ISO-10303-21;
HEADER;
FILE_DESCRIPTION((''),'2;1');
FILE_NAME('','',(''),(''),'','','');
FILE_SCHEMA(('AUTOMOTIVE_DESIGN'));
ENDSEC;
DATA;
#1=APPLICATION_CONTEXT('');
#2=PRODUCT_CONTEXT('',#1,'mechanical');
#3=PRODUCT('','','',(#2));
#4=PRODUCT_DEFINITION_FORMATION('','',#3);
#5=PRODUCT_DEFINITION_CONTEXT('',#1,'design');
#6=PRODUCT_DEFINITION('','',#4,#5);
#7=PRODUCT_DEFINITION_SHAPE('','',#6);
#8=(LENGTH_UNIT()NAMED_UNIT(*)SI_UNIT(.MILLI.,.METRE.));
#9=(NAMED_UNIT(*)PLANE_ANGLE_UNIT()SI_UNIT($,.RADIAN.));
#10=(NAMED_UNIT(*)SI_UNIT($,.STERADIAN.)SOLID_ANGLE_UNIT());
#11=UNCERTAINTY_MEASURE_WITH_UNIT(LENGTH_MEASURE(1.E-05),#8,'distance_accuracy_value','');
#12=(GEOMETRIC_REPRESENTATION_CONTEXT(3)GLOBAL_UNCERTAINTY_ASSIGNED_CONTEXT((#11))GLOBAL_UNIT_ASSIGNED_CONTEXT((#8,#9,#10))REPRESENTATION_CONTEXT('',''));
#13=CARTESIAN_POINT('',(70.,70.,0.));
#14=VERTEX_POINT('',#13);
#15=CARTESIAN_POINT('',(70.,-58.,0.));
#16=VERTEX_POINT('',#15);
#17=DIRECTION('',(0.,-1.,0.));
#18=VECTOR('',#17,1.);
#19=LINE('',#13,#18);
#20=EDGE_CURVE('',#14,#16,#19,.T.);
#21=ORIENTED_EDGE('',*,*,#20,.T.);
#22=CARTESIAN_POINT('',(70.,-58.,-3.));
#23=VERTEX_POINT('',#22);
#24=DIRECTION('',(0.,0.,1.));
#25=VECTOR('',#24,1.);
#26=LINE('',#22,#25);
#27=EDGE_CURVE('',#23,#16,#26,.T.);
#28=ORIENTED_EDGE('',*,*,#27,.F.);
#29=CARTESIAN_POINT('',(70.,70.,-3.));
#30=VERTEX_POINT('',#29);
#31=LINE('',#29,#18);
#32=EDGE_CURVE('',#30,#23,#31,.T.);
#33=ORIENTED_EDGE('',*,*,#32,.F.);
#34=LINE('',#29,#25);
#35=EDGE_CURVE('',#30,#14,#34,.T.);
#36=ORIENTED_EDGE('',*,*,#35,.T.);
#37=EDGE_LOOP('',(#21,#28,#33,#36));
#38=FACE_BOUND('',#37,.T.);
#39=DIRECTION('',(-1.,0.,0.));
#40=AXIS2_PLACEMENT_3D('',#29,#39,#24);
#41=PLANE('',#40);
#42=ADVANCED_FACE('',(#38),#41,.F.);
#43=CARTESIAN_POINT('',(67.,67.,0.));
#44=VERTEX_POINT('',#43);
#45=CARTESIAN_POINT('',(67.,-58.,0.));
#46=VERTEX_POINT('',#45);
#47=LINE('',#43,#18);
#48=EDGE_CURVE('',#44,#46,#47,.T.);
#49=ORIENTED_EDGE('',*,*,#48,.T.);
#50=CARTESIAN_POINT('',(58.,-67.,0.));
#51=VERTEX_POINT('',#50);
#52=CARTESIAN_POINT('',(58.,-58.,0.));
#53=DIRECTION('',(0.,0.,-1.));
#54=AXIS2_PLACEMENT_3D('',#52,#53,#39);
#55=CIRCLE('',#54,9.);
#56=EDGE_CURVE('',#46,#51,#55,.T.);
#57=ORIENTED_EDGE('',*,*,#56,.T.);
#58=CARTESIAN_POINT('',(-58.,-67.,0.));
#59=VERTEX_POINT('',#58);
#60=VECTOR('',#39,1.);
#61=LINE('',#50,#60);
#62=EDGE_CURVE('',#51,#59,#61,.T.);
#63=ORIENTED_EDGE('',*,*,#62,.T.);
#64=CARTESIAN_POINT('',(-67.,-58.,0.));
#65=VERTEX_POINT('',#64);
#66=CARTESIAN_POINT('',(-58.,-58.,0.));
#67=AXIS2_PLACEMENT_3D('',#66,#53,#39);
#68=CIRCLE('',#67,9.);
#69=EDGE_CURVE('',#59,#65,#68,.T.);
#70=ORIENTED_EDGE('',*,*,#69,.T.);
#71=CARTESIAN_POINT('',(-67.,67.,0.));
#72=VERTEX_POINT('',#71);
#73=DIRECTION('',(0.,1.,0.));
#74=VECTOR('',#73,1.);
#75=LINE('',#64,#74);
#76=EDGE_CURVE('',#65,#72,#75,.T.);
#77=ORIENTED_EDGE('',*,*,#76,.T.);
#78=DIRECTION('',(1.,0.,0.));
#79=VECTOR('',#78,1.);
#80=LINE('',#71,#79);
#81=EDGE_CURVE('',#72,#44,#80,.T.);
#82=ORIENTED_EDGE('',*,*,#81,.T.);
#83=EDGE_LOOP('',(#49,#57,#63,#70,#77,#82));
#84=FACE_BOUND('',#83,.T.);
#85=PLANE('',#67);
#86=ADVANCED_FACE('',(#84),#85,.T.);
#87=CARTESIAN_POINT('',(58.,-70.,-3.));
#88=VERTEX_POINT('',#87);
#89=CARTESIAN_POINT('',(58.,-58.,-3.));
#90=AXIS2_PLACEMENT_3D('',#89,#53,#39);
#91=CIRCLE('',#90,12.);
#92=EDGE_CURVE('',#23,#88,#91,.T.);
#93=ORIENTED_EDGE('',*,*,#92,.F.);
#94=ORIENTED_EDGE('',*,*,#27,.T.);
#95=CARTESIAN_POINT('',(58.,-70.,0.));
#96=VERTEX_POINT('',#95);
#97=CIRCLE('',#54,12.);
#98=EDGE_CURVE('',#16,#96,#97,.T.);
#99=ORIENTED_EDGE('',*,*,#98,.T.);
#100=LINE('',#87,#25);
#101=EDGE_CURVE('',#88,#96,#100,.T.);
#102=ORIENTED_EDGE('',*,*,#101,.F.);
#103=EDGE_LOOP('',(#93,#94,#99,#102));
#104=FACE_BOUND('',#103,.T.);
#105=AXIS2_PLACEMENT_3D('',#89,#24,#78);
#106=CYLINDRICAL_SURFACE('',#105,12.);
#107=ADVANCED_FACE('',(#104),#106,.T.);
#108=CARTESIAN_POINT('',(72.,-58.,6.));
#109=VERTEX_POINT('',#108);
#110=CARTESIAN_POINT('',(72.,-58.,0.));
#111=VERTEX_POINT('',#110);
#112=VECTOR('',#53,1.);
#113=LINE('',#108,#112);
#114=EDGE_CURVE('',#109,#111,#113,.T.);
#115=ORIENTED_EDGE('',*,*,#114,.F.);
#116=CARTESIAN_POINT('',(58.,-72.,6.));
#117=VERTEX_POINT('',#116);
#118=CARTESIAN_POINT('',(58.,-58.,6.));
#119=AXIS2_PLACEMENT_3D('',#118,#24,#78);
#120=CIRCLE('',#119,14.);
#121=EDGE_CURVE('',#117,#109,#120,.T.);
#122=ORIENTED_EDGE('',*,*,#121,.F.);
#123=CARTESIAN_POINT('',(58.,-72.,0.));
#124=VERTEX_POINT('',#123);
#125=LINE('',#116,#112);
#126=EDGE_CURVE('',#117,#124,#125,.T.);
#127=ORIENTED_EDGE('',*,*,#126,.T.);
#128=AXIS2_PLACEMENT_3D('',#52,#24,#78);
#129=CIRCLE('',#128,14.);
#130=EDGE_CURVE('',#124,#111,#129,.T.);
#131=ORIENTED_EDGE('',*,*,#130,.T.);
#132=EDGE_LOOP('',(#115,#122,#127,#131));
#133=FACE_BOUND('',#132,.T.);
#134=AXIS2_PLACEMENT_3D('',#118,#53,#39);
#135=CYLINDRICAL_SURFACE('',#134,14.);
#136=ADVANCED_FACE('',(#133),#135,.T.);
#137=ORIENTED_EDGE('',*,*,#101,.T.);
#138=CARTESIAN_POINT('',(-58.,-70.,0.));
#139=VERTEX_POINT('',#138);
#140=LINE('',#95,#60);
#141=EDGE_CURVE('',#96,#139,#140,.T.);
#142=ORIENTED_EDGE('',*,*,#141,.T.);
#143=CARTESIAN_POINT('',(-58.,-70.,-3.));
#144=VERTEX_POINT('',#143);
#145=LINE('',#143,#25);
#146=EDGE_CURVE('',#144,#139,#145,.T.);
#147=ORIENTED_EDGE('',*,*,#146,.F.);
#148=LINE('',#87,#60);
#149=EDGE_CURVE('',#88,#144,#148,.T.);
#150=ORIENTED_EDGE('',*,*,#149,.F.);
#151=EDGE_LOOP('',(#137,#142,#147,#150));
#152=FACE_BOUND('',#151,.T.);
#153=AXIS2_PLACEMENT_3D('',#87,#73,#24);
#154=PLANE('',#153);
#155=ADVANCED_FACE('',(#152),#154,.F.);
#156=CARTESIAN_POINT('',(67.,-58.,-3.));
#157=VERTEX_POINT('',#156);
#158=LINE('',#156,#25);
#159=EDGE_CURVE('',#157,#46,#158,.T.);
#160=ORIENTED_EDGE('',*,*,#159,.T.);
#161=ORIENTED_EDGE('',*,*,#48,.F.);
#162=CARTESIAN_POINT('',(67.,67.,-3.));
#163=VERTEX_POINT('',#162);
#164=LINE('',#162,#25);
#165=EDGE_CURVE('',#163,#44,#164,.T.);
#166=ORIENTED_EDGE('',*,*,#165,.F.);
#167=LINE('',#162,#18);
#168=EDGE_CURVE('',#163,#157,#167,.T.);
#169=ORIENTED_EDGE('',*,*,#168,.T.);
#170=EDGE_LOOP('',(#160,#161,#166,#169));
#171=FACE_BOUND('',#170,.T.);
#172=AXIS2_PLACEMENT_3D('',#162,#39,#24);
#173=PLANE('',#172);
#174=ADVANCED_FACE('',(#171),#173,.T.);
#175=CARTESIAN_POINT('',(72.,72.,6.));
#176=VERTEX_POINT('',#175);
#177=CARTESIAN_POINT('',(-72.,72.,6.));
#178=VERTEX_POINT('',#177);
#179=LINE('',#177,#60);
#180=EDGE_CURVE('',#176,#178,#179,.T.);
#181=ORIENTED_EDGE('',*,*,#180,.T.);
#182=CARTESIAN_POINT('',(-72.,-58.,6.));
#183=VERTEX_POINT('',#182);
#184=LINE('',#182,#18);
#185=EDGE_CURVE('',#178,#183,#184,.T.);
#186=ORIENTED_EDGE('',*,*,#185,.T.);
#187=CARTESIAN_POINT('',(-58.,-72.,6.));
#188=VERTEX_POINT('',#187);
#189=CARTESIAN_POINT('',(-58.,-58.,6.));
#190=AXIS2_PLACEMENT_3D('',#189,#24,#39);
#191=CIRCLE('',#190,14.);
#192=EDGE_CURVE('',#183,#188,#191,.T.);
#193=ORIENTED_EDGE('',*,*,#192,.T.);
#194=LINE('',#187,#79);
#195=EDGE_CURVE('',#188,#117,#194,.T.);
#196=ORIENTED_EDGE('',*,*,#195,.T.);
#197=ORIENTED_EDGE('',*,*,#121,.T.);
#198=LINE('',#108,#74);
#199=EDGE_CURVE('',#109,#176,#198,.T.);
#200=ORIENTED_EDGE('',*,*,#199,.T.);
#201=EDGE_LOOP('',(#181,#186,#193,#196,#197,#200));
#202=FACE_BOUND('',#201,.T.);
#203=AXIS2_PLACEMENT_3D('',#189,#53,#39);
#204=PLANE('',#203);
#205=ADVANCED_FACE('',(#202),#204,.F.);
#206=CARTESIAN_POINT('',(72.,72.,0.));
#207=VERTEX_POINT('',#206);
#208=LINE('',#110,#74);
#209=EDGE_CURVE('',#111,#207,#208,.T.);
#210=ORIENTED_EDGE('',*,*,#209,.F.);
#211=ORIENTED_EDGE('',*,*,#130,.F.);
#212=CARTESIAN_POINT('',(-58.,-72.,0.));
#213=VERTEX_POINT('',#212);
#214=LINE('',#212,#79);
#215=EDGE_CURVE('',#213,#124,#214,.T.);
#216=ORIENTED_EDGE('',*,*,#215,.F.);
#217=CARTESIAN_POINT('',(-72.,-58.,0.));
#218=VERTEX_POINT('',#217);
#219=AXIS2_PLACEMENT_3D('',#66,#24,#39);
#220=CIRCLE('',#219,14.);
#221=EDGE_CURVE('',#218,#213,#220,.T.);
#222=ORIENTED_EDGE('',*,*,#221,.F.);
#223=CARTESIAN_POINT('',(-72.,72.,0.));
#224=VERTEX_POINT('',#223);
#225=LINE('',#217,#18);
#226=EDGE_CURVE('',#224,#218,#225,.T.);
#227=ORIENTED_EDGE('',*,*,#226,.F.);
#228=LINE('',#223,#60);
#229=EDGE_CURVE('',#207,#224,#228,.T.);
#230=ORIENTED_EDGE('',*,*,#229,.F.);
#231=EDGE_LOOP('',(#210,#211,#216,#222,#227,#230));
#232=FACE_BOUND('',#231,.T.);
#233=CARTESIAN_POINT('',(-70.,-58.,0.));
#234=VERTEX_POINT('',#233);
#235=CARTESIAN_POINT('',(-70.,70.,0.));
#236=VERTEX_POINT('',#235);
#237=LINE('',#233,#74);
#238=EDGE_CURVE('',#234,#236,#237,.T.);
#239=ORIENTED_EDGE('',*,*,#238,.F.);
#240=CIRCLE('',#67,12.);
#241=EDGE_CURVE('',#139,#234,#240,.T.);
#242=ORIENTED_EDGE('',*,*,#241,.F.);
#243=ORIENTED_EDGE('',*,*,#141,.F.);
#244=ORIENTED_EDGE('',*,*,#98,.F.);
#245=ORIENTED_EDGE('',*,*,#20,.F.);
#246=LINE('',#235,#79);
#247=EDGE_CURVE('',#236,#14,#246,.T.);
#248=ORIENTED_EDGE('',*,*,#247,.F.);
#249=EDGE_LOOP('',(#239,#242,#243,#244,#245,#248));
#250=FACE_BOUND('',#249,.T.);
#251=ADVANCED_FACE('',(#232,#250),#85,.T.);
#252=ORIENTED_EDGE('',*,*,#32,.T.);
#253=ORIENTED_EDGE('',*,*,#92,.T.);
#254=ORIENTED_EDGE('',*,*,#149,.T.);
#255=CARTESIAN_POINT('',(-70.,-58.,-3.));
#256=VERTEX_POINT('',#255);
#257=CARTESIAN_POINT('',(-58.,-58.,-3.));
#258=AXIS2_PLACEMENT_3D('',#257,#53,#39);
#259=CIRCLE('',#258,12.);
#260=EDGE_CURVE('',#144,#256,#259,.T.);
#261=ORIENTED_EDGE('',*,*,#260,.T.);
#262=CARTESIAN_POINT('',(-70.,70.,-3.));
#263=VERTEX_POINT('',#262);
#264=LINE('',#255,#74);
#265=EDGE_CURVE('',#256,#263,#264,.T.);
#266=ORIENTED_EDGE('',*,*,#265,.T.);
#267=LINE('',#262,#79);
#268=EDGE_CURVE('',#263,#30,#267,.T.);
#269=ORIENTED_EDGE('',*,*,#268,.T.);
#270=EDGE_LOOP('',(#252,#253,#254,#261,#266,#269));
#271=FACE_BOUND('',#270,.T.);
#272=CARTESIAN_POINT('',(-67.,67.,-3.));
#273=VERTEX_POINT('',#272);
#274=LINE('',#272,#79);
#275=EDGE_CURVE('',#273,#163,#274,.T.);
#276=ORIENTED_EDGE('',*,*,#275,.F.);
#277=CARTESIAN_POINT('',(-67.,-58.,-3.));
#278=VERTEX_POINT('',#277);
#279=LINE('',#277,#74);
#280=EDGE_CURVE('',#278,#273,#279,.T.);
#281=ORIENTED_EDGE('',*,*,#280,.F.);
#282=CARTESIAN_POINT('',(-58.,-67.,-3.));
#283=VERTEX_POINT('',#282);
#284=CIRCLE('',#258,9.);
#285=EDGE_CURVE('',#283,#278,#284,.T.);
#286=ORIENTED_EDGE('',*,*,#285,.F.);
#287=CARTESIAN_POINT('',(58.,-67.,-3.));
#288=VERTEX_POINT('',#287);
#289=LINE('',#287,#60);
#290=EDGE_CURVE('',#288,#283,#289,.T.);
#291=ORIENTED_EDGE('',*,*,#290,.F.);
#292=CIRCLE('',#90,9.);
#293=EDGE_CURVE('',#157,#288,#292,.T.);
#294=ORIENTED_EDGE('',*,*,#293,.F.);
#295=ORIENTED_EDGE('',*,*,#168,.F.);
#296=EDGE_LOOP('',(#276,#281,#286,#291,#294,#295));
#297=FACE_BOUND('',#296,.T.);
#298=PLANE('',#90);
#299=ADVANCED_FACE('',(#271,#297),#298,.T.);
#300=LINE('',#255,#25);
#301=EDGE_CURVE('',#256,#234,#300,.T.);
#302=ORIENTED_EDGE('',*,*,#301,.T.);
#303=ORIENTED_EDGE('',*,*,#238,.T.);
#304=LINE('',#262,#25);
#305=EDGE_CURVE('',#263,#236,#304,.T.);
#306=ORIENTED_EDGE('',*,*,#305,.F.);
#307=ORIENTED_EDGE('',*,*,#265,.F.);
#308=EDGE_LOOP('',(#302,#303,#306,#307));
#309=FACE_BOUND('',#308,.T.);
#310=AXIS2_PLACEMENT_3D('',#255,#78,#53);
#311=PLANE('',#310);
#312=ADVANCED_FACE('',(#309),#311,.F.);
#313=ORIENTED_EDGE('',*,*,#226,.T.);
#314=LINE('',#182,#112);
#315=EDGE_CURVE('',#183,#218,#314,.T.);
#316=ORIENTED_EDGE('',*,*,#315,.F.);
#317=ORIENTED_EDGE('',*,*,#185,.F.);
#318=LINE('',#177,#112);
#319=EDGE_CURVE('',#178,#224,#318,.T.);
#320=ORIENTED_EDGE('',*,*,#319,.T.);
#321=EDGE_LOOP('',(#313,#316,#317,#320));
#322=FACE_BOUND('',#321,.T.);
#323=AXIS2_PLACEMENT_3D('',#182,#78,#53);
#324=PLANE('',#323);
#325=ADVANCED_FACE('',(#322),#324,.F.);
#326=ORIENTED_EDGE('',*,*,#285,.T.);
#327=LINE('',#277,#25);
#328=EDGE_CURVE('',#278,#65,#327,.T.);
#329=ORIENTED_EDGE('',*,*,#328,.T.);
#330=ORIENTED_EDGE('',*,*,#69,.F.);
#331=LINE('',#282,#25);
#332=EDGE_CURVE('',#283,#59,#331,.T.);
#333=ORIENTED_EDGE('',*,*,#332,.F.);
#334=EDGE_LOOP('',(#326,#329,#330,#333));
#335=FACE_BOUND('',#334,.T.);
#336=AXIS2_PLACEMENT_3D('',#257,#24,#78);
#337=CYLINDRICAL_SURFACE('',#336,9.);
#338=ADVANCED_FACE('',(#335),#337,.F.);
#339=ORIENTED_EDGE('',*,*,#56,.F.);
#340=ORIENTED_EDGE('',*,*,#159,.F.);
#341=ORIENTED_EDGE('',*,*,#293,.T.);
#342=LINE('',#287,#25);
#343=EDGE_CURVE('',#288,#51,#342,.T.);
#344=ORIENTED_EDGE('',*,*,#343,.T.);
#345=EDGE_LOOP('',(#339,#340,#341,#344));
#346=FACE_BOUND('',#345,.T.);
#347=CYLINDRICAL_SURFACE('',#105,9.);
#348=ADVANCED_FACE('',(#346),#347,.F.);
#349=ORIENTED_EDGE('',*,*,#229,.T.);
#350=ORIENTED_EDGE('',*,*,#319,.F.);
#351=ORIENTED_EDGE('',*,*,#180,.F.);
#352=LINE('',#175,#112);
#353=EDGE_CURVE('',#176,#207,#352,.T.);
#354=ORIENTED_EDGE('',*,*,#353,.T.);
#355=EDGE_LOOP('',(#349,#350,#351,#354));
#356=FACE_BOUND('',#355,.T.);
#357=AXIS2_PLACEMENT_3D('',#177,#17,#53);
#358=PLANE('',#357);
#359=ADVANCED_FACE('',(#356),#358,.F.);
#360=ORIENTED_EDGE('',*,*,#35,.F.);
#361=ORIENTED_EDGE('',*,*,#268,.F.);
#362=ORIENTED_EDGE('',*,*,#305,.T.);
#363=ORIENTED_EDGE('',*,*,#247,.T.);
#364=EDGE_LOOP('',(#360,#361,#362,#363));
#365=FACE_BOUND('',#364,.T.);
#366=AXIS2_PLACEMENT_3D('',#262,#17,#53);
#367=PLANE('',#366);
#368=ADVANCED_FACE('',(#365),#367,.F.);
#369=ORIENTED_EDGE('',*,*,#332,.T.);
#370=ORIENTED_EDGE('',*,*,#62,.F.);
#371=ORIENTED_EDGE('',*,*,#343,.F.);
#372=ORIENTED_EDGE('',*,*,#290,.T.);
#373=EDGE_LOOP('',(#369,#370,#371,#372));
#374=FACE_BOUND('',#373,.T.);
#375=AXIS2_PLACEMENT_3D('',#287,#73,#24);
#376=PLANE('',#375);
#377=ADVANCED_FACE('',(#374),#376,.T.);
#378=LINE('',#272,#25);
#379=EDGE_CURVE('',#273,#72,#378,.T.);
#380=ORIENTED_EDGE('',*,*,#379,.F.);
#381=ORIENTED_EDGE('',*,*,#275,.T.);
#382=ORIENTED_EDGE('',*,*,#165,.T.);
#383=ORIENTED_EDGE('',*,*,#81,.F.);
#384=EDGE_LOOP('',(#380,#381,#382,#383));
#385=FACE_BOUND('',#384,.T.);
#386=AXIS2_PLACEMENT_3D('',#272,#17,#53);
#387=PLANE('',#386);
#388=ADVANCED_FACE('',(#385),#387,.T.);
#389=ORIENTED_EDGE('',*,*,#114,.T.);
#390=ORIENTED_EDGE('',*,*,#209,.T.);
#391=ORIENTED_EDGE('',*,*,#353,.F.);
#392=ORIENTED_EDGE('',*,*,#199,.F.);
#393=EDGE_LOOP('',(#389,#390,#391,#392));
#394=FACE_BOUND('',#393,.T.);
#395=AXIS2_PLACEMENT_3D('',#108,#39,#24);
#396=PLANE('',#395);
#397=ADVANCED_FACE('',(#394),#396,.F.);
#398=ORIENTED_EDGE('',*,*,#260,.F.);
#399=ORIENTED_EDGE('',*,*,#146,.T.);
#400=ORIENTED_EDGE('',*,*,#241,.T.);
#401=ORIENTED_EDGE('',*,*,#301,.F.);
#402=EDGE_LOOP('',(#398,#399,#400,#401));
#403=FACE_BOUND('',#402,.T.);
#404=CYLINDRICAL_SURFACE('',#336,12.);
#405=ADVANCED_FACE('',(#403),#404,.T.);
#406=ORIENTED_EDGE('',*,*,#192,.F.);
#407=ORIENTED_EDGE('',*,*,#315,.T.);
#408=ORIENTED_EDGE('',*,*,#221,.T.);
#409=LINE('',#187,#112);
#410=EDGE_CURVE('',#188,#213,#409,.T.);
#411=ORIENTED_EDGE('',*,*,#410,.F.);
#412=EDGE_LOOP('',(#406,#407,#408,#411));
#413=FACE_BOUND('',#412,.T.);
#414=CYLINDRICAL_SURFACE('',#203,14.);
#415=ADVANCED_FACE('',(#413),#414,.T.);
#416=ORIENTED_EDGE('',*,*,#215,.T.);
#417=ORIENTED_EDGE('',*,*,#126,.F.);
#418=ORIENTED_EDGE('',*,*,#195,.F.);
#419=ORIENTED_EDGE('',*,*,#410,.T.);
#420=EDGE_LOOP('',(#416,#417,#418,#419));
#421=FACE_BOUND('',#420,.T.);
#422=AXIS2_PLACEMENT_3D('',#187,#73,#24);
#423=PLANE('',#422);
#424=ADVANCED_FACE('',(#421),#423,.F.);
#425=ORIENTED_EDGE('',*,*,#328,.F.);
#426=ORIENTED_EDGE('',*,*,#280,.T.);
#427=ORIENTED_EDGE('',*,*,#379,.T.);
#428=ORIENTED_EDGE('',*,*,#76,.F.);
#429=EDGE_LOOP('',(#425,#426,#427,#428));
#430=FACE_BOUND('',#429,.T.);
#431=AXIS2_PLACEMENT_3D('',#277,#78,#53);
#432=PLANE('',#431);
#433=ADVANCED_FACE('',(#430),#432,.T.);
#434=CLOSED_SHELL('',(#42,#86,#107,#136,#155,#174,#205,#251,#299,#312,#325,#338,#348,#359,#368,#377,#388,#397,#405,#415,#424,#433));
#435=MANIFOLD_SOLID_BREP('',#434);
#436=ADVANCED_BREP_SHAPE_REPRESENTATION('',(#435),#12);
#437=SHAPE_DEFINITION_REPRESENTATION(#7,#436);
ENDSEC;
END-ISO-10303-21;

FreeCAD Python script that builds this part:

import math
import FreeCAD as App
import Part
import Sketcher
Q = App.Units.Quantity

doc = App.newDocument("Part")
params = doc.addObject("Spreadsheet::Sheet", "Params")
for row, (alias, value) in enumerate([
    ("sketch1_radius", "14 mm"),
    ("sketch1_width", "116 mm"),
    ("sketch1_height", "130 mm"),
    ("pad1_length", "6 mm"),
    ("sketch2_radius", "12 mm"),
    ("sketch2_radius2", "9 mm"),
    ("sketch2_width", "116 mm"),
    ("sketch2_height", "128 mm"),
    ("sketch2_height2", "125 mm"),
    ("pad2_length", "3 mm"),
], start=1):
    params.set(f"A{row}", alias)
    params.set(f"B{row}", "=" + value)
    params.setAlias(f"B{row}", alias)

body = doc.addObject("PartDesign::Body", "Body")

# Sketch on XY plane
sketch1 = doc.addObject("Sketcher::SketchObject", "Sketch")
body.addObject(sketch1)
sketch1.AttachmentSupport = (doc.XY_Plane, [""])
sketch1.MapMode = "FlatFace"
sketch1.addGeometry([
    Part.LineSegment(App.Vector(-58, -72, 0), App.Vector(58, -72, 0)),  # 0
    Part.ArcOfCircle(Part.Circle(App.Vector(58, -58, 0), App.Vector(0, 0, 1), 14), math.radians(-90), math.radians(0)),  # 1
    Part.LineSegment(App.Vector(72, -58, 0), App.Vector(72, 72, 0)),  # 2
    Part.LineSegment(App.Vector(72, 72, 0), App.Vector(-72, 72, 0)),  # 3
    Part.LineSegment(App.Vector(-72, 72, 0), App.Vector(-72, -58, 0)),  # 4
    Part.ArcOfCircle(Part.Circle(App.Vector(-58, -58, 0), App.Vector(0, 0, 1), 14), math.radians(180), math.radians(270)),  # 5
], False)
sketch1.addConstraint([
    Sketcher.Constraint("Tangent", 0, 2, 1, 1),
    Sketcher.Constraint("Tangent", 1, 2, 2, 1),
    Sketcher.Constraint("Coincident", 2, 2, 3, 1),
    Sketcher.Constraint("Coincident", 3, 2, 4, 1),
    Sketcher.Constraint("Tangent", 4, 2, 5, 1),
    Sketcher.Constraint("Tangent", 5, 2, 0, 1),
    Sketcher.Constraint("Horizontal", 0),
    Sketcher.Constraint("Vertical", 2),
    Sketcher.Constraint("Horizontal", 3),
    Sketcher.Constraint("Vertical", 4),
    Sketcher.Constraint("Equal", 1, 5),
    Sketcher.Constraint("Radius", 1, Q("14 mm")),
    Sketcher.Constraint("DistanceX", 0, 1, 0, 2, Q("116 mm")),
    Sketcher.Constraint("DistanceY", 2, 1, 2, 2, Q("130 mm")),
    Sketcher.Constraint("DistanceX", -1, 1, 1, 3, Q("58 mm")),
    Sketcher.Constraint("DistanceY", 1, 3, -1, 1, Q("58 mm")),
])
sketch1.setExpression("Constraints[11]", "Params.sketch1_radius")
sketch1.setExpression("Constraints[12]", "Params.sketch1_width")
sketch1.setExpression("Constraints[13]", "Params.sketch1_height")
pad1 = doc.addObject("PartDesign::Pad", "Pad")
body.addObject(pad1)
pad1.Profile = sketch1
pad1.setExpression("Length", "Params.pad1_length")

# Sketch on XY plane
sketch2 = doc.addObject("Sketcher::SketchObject", "Sketch001")
body.addObject(sketch2)
sketch2.AttachmentSupport = (doc.XY_Plane, [""])
sketch2.MapMode = "FlatFace"
sketch2.addGeometry([
    Part.LineSegment(App.Vector(70, 70, 0), App.Vector(70, -58, 0)),  # 0
    Part.ArcOfCircle(Part.Circle(App.Vector(58, -58, 0), App.Vector(0, 0, 1), 12), math.radians(-90), math.radians(0)),  # 1
    Part.LineSegment(App.Vector(58, -70, 0), App.Vector(-58, -70, 0)),  # 2
    Part.ArcOfCircle(Part.Circle(App.Vector(-58, -58, 0), App.Vector(0, 0, 1), 12), math.radians(-180), math.radians(-90)),  # 3
    Part.LineSegment(App.Vector(-70, -58, 0), App.Vector(-70, 70, 0)),  # 4
    Part.LineSegment(App.Vector(-70, 70, 0), App.Vector(70, 70, 0)),  # 5
    Part.LineSegment(App.Vector(67, -58, 0), App.Vector(67, 67, 0)),  # 6
    Part.LineSegment(App.Vector(67, 67, 0), App.Vector(-67, 67, 0)),  # 7
    Part.LineSegment(App.Vector(-67, 67, 0), App.Vector(-67, -58, 0)),  # 8
    Part.ArcOfCircle(Part.Circle(App.Vector(-58, -58, 0), App.Vector(0, 0, 1), 9), math.radians(180), math.radians(270)),  # 9
    Part.LineSegment(App.Vector(-58, -67, 0), App.Vector(58, -67, 0)),  # 10
    Part.ArcOfCircle(Part.Circle(App.Vector(58, -58, 0), App.Vector(0, 0, 1), 9), math.radians(-90), math.radians(0)),  # 11
], False)
sketch2.addConstraint([
    Sketcher.Constraint("Tangent", 0, 2, 1, 2),
    Sketcher.Constraint("Tangent", 1, 1, 2, 1),
    Sketcher.Constraint("Tangent", 2, 2, 3, 2),
    Sketcher.Constraint("Tangent", 3, 1, 4, 1),
    Sketcher.Constraint("Coincident", 4, 2, 5, 1),
    Sketcher.Constraint("Coincident", 5, 2, 0, 1),
    Sketcher.Constraint("Coincident", 6, 2, 7, 1),
    Sketcher.Constraint("Coincident", 7, 2, 8, 1),
    Sketcher.Constraint("Tangent", 8, 2, 9, 1),
    Sketcher.Constraint("Tangent", 9, 2, 10, 1),
    Sketcher.Constraint("Tangent", 10, 2, 11, 1),
    Sketcher.Constraint("Tangent", 11, 2, 6, 1),
    Sketcher.Constraint("Vertical", 0),
    Sketcher.Constraint("Horizontal", 2),
    Sketcher.Constraint("Vertical", 4),
    Sketcher.Constraint("Horizontal", 5),
    Sketcher.Constraint("Vertical", 6),
    Sketcher.Constraint("Horizontal", 7),
    Sketcher.Constraint("Vertical", 8),
    Sketcher.Constraint("Horizontal", 10),
    Sketcher.Constraint("Coincident", 9, 3, 3, 3),
    Sketcher.Constraint("Coincident", 11, 3, 1, 3),
    Sketcher.Constraint("Equal", 1, 3),
    Sketcher.Constraint("Radius", 1, Q("12 mm")),
    Sketcher.Constraint("Radius", 9, Q("9 mm")),
    Sketcher.Constraint("DistanceX", 2, 2, 2, 1, Q("116 mm")),
    Sketcher.Constraint("DistanceY", 0, 2, 0, 1, Q("128 mm")),
    Sketcher.Constraint("DistanceY", 6, 1, 6, 2, Q("125 mm")),
    Sketcher.Constraint("DistanceX", -1, 1, 1, 3, Q("58 mm")),
    Sketcher.Constraint("DistanceY", 1, 3, -1, 1, Q("58 mm")),
])
sketch2.setExpression("Constraints[23]", "Params.sketch2_radius")
sketch2.setExpression("Constraints[24]", "Params.sketch2_radius2")
sketch2.setExpression("Constraints[25]", "Params.sketch2_width")
sketch2.setExpression("Constraints[26]", "Params.sketch2_height")
sketch2.setExpression("Constraints[27]", "Params.sketch2_height2")
pad2 = doc.addObject("PartDesign::Pad", "Pad001")
body.addObject(pad2)
pad2.Profile = sketch2
pad2.setExpression("Length", "Params.pad2_length")
pad2.Reversed = True

doc.recompute()
